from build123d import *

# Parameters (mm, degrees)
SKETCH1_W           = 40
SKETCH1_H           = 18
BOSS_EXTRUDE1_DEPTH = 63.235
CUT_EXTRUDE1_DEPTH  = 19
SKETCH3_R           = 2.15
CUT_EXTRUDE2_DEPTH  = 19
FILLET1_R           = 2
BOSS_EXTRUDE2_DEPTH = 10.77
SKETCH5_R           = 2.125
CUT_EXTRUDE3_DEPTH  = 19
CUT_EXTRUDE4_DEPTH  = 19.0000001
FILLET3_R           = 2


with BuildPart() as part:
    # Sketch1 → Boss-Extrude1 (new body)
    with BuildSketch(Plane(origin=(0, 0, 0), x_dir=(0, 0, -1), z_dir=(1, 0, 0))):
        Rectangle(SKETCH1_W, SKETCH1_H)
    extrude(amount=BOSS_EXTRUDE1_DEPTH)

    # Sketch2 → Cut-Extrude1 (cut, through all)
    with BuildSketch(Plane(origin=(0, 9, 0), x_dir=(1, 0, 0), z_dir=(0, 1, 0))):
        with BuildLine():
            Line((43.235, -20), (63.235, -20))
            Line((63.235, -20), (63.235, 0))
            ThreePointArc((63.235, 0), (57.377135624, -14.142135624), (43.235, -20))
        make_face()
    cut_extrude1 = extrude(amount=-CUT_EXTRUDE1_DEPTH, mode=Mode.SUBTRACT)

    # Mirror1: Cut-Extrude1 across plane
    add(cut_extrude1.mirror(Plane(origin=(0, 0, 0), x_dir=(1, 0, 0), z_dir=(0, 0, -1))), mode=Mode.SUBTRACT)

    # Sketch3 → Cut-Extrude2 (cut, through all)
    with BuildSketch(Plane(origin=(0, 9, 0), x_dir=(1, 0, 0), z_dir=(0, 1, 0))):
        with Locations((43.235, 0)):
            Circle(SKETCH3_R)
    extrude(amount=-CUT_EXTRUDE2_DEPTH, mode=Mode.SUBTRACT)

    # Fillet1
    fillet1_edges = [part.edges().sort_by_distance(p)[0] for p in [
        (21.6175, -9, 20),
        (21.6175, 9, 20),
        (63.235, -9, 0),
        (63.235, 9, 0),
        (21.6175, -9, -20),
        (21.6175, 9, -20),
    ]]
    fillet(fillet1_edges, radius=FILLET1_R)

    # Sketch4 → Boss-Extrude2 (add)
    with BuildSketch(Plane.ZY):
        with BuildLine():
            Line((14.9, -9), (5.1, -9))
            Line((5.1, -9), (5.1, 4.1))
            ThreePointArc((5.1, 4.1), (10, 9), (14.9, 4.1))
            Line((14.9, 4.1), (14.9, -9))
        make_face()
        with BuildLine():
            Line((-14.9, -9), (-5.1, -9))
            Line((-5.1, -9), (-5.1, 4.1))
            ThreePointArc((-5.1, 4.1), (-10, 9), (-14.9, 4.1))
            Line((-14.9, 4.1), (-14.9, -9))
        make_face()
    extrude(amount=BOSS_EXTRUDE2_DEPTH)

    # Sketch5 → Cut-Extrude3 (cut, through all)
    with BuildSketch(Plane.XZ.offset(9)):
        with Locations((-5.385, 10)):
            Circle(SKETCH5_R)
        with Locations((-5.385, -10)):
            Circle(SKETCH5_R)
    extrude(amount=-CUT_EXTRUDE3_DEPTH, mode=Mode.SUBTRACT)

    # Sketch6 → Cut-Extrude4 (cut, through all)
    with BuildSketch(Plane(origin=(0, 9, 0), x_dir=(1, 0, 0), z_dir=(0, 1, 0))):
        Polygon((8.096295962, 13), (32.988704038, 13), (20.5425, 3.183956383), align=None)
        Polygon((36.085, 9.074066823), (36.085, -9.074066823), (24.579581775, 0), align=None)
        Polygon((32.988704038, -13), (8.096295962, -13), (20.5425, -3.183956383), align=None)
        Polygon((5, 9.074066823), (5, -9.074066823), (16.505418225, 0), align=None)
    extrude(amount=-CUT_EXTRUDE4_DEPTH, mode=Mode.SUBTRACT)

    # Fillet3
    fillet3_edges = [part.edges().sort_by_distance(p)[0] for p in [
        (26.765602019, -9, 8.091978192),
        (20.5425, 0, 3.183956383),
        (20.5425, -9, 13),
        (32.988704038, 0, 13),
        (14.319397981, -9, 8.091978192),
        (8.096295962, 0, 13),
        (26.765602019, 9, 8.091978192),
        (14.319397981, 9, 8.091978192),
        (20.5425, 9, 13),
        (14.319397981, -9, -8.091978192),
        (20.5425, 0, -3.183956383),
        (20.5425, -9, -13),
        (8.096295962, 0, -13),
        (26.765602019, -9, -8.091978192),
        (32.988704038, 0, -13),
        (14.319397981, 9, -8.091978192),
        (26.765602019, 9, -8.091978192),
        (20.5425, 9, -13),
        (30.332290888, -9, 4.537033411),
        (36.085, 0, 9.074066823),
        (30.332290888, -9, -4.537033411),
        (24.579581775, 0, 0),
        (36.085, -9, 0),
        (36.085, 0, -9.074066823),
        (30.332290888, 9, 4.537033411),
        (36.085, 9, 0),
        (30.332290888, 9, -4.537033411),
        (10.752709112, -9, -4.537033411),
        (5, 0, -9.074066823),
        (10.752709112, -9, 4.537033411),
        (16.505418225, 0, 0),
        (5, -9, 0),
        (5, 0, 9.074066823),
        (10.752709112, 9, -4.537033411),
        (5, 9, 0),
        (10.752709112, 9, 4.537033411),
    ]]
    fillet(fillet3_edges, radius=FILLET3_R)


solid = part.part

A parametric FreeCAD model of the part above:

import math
import FreeCAD as App
import Part
import Sketcher

V = App.Vector
Q = App.Units.Quantity


def edges_at(feature, points):
    """Names of the edges that pass closest to the given points."""
    edges = feature.Shape.Edges
    near = lambda p: min(range(len(edges)), key=lambda i: edges[i].distToShape(Part.Vertex(*p))[0])
    return sorted({f"Edge{near(p) + 1}" for p in points})


def add_polygon(sketch, points):
    """Adds a closed chain of lines whose ends are joined by coincident constraints."""
    first, n = sketch.GeometryCount, len(points)
    for a, b in zip(points, points[1:] + points[:1]):
        sketch.addGeometry(Part.LineSegment(App.Vector(*a, 0), App.Vector(*b, 0)), False)
    for i in range(n):
        sketch.addConstraint(Sketcher.Constraint("Coincident", first + i, 2, first + (i + 1) % n, 1))

doc = App.newDocument("Part")
params = doc.addObject("Spreadsheet::Sheet", "Params")
for row, (alias, value) in enumerate([
    ("sketch1_width", "18 mm"),
    ("sketch1_height", "40 mm"),
    ("pad1_length", "63.235 mm"),
    ("sketch2_radius", "20 mm"),
    ("sketch3_diameter", "4.3 mm"),
    ("fillet_radius", "2 mm"),
    ("sketch4_radius", "4.9 mm"),
    ("sketch4_width", "13.1 mm"),
    ("pad2_length", "10.77 mm"),
    ("sketch5_diameter", "4.25 mm"),
    ("fillet2_radius", "2 mm"),
], start=1):
    params.set(f"A{row}", alias)
    params.set(f"B{row}", "=" + value)
    params.setAlias(f"B{row}", alias)

body = doc.addObject("PartDesign::Body", "Body")

# Sketch on YZ plane
sketch1 = body.newObject("Sketcher::SketchObject", "Sketch")
sketch1.AttachmentSupport = (doc.getObject("YZ_Plane"), [""])
sketch1.MapMode = "FlatFace"
add_polygon(sketch1, [(9, 20), (-9, 20), (-9, -20), (9, -20)])  # lines 0-3
sketch1.addConstraint([
    Sketcher.Constraint("Horizontal", 0),
    Sketcher.Constraint("Vertical", 1),
    Sketcher.Constraint("Horizontal", 2),
    Sketcher.Constraint("Vertical", 3),
    Sketcher.Constraint("Symmetric", 0, 2, 2, 2, -1, 1),
    Sketcher.Constraint("DistanceX", 0, 2, 0, 1, Q("18 mm")),
    Sketcher.Constraint("DistanceY", 1, 2, 1, 1, Q("40 mm")),
])
sketch1.setExpression("Constraints[9]", "Params.sketch1_width")
sketch1.setExpression("Constraints[10]", "Params.sketch1_height")
pad1 = body.newObject("PartDesign::Pad", "Pad")
pad1.Profile = sketch1
pad1.setExpression("Length", "Params.pad1_length")

# Sketch on XZ plane
sketch2 = body.newObject("Sketcher::SketchObject", "Sketch001")
sketch2.AttachmentSupport = (doc.getObject("XZ_Plane"), [""])
sketch2.MapMode = "FlatFace"
sketch2.AttachmentOffset = App.Placement(V(0, 0, -9), App.Rotation())
sketch2.addGeometry([
    Part.LineSegment(V(43, 20, 0), V(63, 20, 0)),
    Part.LineSegment(V(63, 20, 0), V(63, 0, 0)),
    Part.ArcOfCircle(Part.Circle(V(43, 0, 0), V(0, 0, 1), 20), math.radians(0), math.radians(90)),
], False)
sketch2.addConstraint([
    Sketcher.Constraint("Coincident", 0, 2, 1, 1),
    Sketcher.Constraint("Tangent", 1, 2, 2, 1),
    Sketcher.Constraint("Tangent", 2, 2, 0, 1),
    Sketcher.Constraint("Horizontal", 0),
    Sketcher.Constraint("Vertical", 1),
    Sketcher.Constraint("PointOnObject", 2, 3, -1),
    Sketcher.Constraint("Radius", 2, Q("20 mm")),
    Sketcher.Constraint("DistanceX", -1, 1, 2, 3, Q("43.235 mm")),
])
sketch2.setExpression("Constraints[6]", "Params.sketch2_radius")
pocket1 = body.newObject("PartDesign::Pocket", "Pocket")
pocket1.Profile = sketch2
pocket1.Type = "ThroughAll"
pocket1.Reversed = True
doc.recompute()

mirrored = body.newObject("PartDesign::Mirrored", "Mirrored")
mirrored.Originals = [pocket1]
mirrored.MirrorPlane = (doc.getObject("XY_Plane"), [""])
body.Tip = mirrored

# Sketch on XZ plane
sketch3 = body.newObject("Sketcher::SketchObject", "Sketch002")
sketch3.AttachmentSupport = (doc.getObject("XZ_Plane"), [""])
sketch3.MapMode = "FlatFace"
sketch3.AttachmentOffset = App.Placement(V(0, 0, -9), App.Rotation())
sketch3.addGeometry(Part.Circle(V(43.2, 0, 0), V(0, 0, 1), 2.1), False)
sketch3.addConstraint([
    Sketcher.Constraint("PointOnObject", 0, 3, -1),
    Sketcher.Constraint("Diameter", 0, Q("4.3 mm")),
    Sketcher.Constraint("DistanceX", -1, 1, 0, 3, Q("43.235 mm")),
])
sketch3.setExpression("Constraints[1]", "Params.sketch3_diameter")
pocket2 = body.newObject("PartDesign::Pocket", "Pocket001")
pocket2.Profile = sketch3
pocket2.Type = "ThroughAll"
pocket2.Reversed = True
doc.recompute()

fillet = body.newObject("PartDesign::Fillet", "Fillet")
fillet.Base = (pocket2, edges_at(pocket2, [
    (21.617, -9, 20),
    (21.617, 9, 20),
    (57.377, -9, 14.142),
    (57.377, 9, 14.142),
    (21.617, -9, -20),
    (21.617, 9, -20),
]))
fillet.setExpression("Radius", "Params.fillet_radius")

# Sketch on YZ plane
sketch4 = body.newObject("Sketcher::SketchObject", "Sketch003")
sketch4.AttachmentSupport = (doc.getObject("YZ_Plane"), [""])
sketch4.MapMode = "FlatFace"
sketch4.addGeometry([
    Part.LineSegment(V(-9, 5.1, 0), V(-9, 14.9, 0)),  # 0
    Part.LineSegment(V(-9, 14.9, 0), V(4.1, 14.9, 0)),  # 1
    Part.ArcOfCircle(Part.Circle(V(4.1, 10, 0), V(0, 0, 1), 4.9), math.radians(-90), math.radians(90)),  # 2
    Part.LineSegment(V(4.1, 5.1, 0), V(-9, 5.1, 0)),  # 3
    Part.LineSegment(V(-9, -14.9, 0), V(-9, -5.1, 0)),  # 4
    Part.LineSegment(V(-9, -5.1, 0), V(4.1, -5.1, 0)),  # 5
    Part.ArcOfCircle(Part.Circle(V(4.1, -10, 0), V(0, 0, 1), 4.9), math.radians(-90), math.radians(90)),  # 6
    Part.LineSegment(V(4.1, -14.9, 0), V(-9, -14.9, 0)),  # 7
], False)
sketch4.addConstraint([
    Sketcher.Constraint("Coincident", 0, 2, 1, 1),
    Sketcher.Constraint("Tangent", 1, 2, 2, 2),
    Sketcher.Constraint("Tangent", 2, 1, 3, 1),
    Sketcher.Constraint("Coincident", 3, 2, 0, 1),
    Sketcher.Constraint("Coincident", 4, 2, 5, 1),
    Sketcher.Constraint("Tangent", 5, 2, 6, 2),
    Sketcher.Constraint("Tangent", 6, 1, 7, 1),
    Sketcher.Constraint("Coincident", 7, 2, 4, 1),
    Sketcher.Constraint("Vertical", 0),
    Sketcher.Constraint("Horizontal", 1),
    Sketcher.Constraint("Horizontal", 3),
    Sketcher.Constraint("Vertical", 4),
    Sketcher.Constraint("Horizontal", 5),
    Sketcher.Constraint("Horizontal", 7),
    Sketcher.Constraint("Equal", 2, 6),
    Sketcher.Constraint("Symmetric", 2, 3, 6, 3, -1),
    Sketcher.Constraint("Vertical", 3, 2, 4, 2),
    Sketcher.Constraint("Radius", 2, Q("4.9 mm")),
    Sketcher.Constraint("DistanceX", 1, 1, 1, 2, Q("13.1 mm")),
    Sketcher.Constraint("DistanceY", -1, 1, 2, 3, Q("10 mm")),
    Sketcher.Constraint("DistanceX", 0, 2, -1, 1, Q("9 mm")),
])
sketch4.setExpression("Constraints[17]", "Params.sketch4_radius")
sketch4.setExpression("Constraints[18]", "Params.sketch4_width")
pad2 = body.newObject("PartDesign::Pad", "Pad001")
pad2.Profile = sketch4
pad2.setExpression("Length", "Params.pad2_length")
pad2.Reversed = True

# Sketch on XZ plane
sketch5 = body.newObject("Sketcher::SketchObject", "Sketch004")
sketch5.AttachmentSupport = (doc.getObject("XZ_Plane"), [""])
sketch5.MapMode = "FlatFace"
sketch5.AttachmentOffset = App.Placement(V(0, 0, 9), App.Rotation())
sketch5.addGeometry([
    Part.Circle(V(-5.4, 10, 0), V(0, 0, 1), 2.1),
    Part.Circle(V(-5.4, -10, 0), V(0, 0, 1), 2.1),
], False)
sketch5.addConstraint([
    Sketcher.Constraint("Equal", 0, 1),
    Sketcher.Constraint("Symmetric", 0, 3, 1, 3, -1),
    Sketcher.Constraint("Diameter", 0, Q("4.25 mm")),
    Sketcher.Constraint("DistanceY", -1, 1, 0, 3, Q("10 mm")),
    Sketcher.Constraint("DistanceX", 0, 3, -1, 1, Q("5.385 mm")),
])
sketch5.setExpression("Constraints[2]", "Params.sketch5_diameter")
pocket3 = body.newObject("PartDesign::Pocket", "Pocket002")
pocket3.Profile = sketch5
pocket3.Type = "ThroughAll"

# Sketch on XZ plane
sketch6 = body.newObject("Sketcher::SketchObject", "Sketch005")
sketch6.AttachmentSupport = (doc.getObject("XZ_Plane"), [""])
sketch6.MapMode = "FlatFace"
sketch6.AttachmentOffset = App.Placement(V(0, 0, -9), App.Rotation())
add_polygon(sketch6, [(33, -13), (8, -13), (21, -3)])  # lines 0-2
add_polygon(sketch6, [(36, 9), (36, -9), (25, 0)])  # lines 3-5
add_polygon(sketch6, [(8, 13), (33, 13), (21, 3)])  # lines 6-8
add_polygon(sketch6, [(5, -9), (5, 9), (17, 0)])  # lines 9-11
sketch6.addConstraint([
    Sketcher.Constraint("Horizontal", 0),
    Sketcher.Constraint("Vertical", 3),
    Sketcher.Constraint("Horizontal", 6),
    Sketcher.Constraint("Vertical", 9),
    Sketcher.Constraint("Symmetric", 2, 2, 6, 2, -1),
    Sketcher.Constraint("Symmetric", 1, 2, 7, 2, -1),
    Sketcher.Constraint("PointOnObject", 4, 2, -1),
    Sketcher.Constraint("PointOnObject", 10, 2, -1),
    Sketcher.Constraint("Parallel", 2, 4),
    Sketcher.Constraint("Parallel", 1, 5),
    Sketcher.Constraint("Parallel", 5, 7),
    Sketcher.Constraint("Parallel", 4, 8),
    Sketcher.Constraint("Parallel", 8, 10),
    Sketcher.Constraint("Parallel", 7, 11),
    Sketcher.Constraint("Horizontal", 5, 2, 9, 2),
    Sketcher.Constraint("DistanceY", 0, 2, -1, 1, Q("13 mm")),
    Sketcher.Constraint("DistanceX", -1, 1, 9, 2, Q("5 mm")),
    Sketcher.Constraint("DistanceX", -1, 1, 3, 2, Q("36.085 mm")),
    Sketcher.Constraint("Distance", 4, Q("14.6531 mm")),
    Sketcher.Constraint("DistanceX", 0, 2, 0, 1, Q("24.892408 mm")),
    Sketcher.Constraint("DistanceX", -1, 1, 1, 2, Q("20.5425 mm")),
    Sketcher.Constraint("Distance", 1, Q("15.851268 mm")),
])
pocket4 = body.newObject("PartDesign::Pocket", "Pocket003")
pocket4.Profile = sketch6
pocket4.Type = "ThroughAll"
pocket4.Reversed = True
doc.recompute()

fillet2 = body.newObject("PartDesign::Fillet", "Fillet001")
fillet2.Base = (pocket4, edges_at(pocket4, [
    (26.766, -9, 8.092),
    (20.543, 0, 3.184),
    (20.543, -9, 13),
    (32.989, 0, 13),
    (14.319, -9, 8.092),
    (8.096, 0, 13),
    (26.766, 9, 8.092),
    (14.319, 9, 8.092),
    (20.543, 9, 13),
    (14.319, -9, -8.092),
    (20.543, 0, -3.184),
    (20.543, -9, -13),
    (8.096, 0, -13),
    (26.766, -9, -8.092),
    (32.989, 0, -13),
    (14.319, 9, -8.092),
    (26.766, 9, -8.092),
    (20.543, 9, -13),
    (30.332, -9, 4.537),
    (36.085, 0, 9.074),
    (30.332, -9, -4.537),
    (24.58, 0, 0),
    (36.085, -9, 0),
    (36.085, 0, -9.074),
    (30.332, 9, 4.537),
    (36.085, 9, 0),
    (30.332, 9, -4.537),
    (10.753, -9, -4.537),
    (5, 0, -9.074),
    (10.753, -9, 4.537),
    (16.505, 0, 0),
    (5, -9, 0),
    (5, 0, 9.074),
    (10.753, 9, -4.537),
    (5, 9, 0),
    (10.753, 9, 4.537),
]))
fillet2.setExpression("Radius", "Params.fillet2_radius")

doc.recompute()
